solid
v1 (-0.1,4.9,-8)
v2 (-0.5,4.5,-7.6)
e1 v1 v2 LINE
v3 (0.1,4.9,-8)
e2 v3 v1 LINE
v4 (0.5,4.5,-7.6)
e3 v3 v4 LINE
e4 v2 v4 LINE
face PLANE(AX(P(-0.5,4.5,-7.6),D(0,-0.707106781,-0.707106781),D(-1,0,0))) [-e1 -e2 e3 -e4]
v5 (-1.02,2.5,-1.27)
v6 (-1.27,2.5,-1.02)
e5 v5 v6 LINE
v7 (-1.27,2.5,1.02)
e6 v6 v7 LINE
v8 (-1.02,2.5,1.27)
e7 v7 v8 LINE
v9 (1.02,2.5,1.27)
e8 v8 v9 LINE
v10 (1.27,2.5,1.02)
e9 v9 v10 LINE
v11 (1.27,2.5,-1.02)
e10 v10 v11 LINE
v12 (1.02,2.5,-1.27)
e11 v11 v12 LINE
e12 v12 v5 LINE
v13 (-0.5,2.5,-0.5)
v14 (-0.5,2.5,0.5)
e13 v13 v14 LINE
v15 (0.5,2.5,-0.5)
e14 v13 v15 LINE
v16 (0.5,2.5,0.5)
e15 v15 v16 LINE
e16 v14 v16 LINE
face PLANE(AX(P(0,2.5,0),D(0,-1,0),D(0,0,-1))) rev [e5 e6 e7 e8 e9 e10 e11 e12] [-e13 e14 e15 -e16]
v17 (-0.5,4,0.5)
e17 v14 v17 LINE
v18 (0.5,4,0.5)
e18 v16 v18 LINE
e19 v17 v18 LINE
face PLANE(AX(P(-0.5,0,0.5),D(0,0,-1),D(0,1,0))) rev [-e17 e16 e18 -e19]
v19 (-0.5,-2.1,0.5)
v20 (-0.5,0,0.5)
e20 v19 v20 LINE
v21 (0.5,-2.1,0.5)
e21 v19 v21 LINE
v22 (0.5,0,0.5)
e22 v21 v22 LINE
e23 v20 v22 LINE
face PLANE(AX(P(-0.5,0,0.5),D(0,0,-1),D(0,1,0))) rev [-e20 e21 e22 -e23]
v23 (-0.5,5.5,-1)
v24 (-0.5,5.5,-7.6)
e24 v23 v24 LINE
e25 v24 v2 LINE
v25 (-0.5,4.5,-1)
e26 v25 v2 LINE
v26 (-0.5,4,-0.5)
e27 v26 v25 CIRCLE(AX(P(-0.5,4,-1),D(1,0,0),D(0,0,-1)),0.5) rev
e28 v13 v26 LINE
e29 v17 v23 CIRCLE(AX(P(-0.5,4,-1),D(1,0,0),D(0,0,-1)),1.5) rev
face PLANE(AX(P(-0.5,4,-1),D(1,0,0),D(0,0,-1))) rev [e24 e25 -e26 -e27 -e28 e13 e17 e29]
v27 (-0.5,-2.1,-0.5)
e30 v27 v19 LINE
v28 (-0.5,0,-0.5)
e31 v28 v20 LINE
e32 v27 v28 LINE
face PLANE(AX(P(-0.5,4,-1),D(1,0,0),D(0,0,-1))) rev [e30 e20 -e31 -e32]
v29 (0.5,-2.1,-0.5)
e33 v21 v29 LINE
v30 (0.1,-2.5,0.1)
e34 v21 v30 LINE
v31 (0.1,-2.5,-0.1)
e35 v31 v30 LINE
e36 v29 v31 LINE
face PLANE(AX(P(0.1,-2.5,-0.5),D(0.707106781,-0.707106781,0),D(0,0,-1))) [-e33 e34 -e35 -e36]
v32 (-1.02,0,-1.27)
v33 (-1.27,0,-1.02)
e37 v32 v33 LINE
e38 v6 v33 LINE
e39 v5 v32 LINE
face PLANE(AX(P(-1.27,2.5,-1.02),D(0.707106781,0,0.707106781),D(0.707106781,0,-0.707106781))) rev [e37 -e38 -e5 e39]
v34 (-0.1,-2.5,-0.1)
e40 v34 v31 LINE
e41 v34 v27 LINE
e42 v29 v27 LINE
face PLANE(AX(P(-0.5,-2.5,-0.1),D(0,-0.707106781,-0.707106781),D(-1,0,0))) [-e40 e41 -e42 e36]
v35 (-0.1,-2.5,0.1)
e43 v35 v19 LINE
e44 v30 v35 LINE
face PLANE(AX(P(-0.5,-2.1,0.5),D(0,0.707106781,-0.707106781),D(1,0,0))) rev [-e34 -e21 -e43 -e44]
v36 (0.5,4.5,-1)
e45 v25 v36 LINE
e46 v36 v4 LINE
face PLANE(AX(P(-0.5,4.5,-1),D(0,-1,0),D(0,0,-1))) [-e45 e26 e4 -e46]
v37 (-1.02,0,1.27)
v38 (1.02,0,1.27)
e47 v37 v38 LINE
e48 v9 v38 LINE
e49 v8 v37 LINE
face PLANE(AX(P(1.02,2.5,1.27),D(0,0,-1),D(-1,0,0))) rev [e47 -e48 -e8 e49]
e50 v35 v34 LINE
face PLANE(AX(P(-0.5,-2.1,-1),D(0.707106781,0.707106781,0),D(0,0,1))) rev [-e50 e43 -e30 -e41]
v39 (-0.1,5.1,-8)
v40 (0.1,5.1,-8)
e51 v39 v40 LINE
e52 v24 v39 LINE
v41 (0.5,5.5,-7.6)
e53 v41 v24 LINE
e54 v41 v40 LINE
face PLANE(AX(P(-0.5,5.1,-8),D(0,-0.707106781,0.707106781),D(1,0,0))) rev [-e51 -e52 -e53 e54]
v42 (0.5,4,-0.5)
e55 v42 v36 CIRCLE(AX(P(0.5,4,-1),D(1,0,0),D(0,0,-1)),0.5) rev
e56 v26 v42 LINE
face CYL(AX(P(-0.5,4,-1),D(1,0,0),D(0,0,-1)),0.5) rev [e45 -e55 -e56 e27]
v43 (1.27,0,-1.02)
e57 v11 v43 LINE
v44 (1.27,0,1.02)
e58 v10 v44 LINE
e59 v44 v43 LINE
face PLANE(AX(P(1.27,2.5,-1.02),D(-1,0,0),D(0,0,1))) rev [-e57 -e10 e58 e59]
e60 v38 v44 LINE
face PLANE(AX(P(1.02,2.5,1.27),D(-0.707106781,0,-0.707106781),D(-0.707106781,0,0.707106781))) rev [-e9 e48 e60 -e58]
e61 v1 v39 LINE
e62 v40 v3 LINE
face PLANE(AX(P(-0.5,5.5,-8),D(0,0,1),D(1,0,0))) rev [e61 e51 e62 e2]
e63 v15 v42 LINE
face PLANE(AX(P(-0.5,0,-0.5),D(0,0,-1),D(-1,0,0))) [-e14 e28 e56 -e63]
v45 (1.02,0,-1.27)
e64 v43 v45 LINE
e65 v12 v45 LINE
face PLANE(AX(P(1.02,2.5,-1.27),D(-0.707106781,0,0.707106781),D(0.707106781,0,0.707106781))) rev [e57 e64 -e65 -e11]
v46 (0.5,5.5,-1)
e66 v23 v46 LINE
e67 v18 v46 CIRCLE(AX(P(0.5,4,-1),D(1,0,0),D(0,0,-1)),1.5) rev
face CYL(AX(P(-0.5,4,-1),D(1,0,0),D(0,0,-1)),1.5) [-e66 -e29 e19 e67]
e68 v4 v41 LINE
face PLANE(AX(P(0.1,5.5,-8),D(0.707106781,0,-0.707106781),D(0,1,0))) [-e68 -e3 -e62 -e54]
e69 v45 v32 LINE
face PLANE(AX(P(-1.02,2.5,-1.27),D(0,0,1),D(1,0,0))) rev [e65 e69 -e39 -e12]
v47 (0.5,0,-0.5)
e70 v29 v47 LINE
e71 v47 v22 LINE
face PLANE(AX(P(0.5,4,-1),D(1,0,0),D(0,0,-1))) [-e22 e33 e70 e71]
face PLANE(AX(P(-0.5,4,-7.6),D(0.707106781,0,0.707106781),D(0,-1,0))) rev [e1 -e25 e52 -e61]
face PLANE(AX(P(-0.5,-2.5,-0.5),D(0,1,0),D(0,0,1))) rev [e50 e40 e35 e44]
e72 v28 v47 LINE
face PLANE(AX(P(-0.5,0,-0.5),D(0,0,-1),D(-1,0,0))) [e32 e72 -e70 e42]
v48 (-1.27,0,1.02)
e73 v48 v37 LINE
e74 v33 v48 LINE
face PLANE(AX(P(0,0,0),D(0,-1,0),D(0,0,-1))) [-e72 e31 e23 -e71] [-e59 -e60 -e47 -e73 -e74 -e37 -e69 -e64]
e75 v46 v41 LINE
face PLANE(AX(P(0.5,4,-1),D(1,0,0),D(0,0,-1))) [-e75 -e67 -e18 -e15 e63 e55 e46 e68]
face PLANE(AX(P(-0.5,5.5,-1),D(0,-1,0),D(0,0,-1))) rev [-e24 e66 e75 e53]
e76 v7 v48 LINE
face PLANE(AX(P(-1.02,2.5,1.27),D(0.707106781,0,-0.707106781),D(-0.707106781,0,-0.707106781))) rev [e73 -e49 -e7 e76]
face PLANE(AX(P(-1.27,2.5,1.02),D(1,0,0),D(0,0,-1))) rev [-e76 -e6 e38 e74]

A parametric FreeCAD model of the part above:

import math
import FreeCAD as App
import Part
import Sketcher
from FreeCAD import Vector


def edges_at(feature, points):
    """Names of the edges that pass closest to the given points."""
    edges = feature.Shape.Edges
    near = lambda p: min(range(len(edges)), key=lambda i: edges[i].distToShape(Part.Vertex(*p))[0])
    return sorted({f"Edge{near(p) + 1}" for p in points})


def add_polygon(sketch, points):
    """Adds a closed chain of lines whose ends are joined by coincident constraints."""
    first, n = sketch.GeometryCount, len(points)
    for a, b in zip(points, points[1:] + points[:1]):
        sketch.addGeometry(Part.LineSegment(App.Vector(*a, 0), App.Vector(*b, 0)), False)
    for i in range(n):
        sketch.addConstraint(Sketcher.Constraint("Coincident", first + i, 2, first + (i + 1) % n, 1))

doc = App.newDocument("Part")
body = doc.addObject("PartDesign::Body", "Body")

sketch1 = doc.addObject("Sketcher::SketchObject", "Sketch")
body.addObject(sketch1)
sketch1.AttachmentSupport = (doc.XZ_Plane, [""])
sketch1.MapMode = "FlatFace"
add_polygon(sketch1, [(-1.02, 1.27), (1.02, 1.27), (1.27, 1.02), (1.27, -1.02), (1.02, -1.27), (-1.02, -1.27), (-1.27, -1.02), (-1.27, 1.02)])
sketch1.addConstraint([
    Sketcher.Constraint("Horizontal", 0),
    Sketcher.Constraint("Vertical", 2),
    Sketcher.Constraint("Horizontal", 4),
    Sketcher.Constraint("Vertical", 6),
    Sketcher.Constraint("Symmetric", 0, 2, 4, 2, -1, 1),
    Sketcher.Constraint("Symmetric", 1, 2, 5, 2, -1, 1),
    Sketcher.Constraint("Perpendicular", 1, 3),
    Sketcher.Constraint("Perpendicular", 5, 7),
    Sketcher.Constraint("Horizontal", 2, 2, 5, 2),
    Sketcher.Constraint("Horizontal", 1, 2, 6, 2),
    Sketcher.Constraint("Vertical", 0, 2, 3, 2),
    Sketcher.Constraint("Equal", 4, 2),
    Sketcher.Constraint("DistanceX", 0, 1, 0, 2, 2.04),
    Sketcher.Constraint("DistanceY", -1, 1, 0, 2, 1.27),
])
pad1 = doc.addObject("PartDesign::Pad", "Pad")
body.addObject(pad1)
pad1.Profile = sketch1
pad1.Length = 2.5
pad1.Reversed = True

sketch2 = doc.addObject("Sketcher::SketchObject", "Sketch001")
body.addObject(sketch2)
sketch2.AttachmentSupport = (doc.YZ_Plane, [""])
sketch2.MapMode = "FlatFace"
sketch2.addGeometry([
    Part.LineSegment(Vector(-2.5, -0.5, 0), Vector(4, -0.5, 0)),
    Part.ArcOfCircle(Part.Circle(Vector(4, -1, 0), Vector(0, 0, 1), 0.5), math.radians(0), math.radians(90)),
    Part.LineSegment(Vector(4.5, -1, 0), Vector(4.5, -8, 0)),
    Part.LineSegment(Vector(4.5, -8, 0), Vector(5.5, -8, 0)),
    Part.LineSegment(Vector(5.5, -8, 0), Vector(5.5, -1, 0)),
    Part.ArcOfCircle(Part.Circle(Vector(4, -1, 0), Vector(0, 0, 1), 1.5), math.radians(0), math.radians(90)),
    Part.LineSegment(Vector(4, 0.5, 0), Vector(-2.5, 0.5, 0)),
    Part.LineSegment(Vector(-2.5, 0.5, 0), Vector(-2.5, -0.5, 0)),
], False)
sketch2.addConstraint([
    Sketcher.Constraint("Tangent", 0, 2, 1, 2),
    Sketcher.Constraint("Tangent", 1, 1, 2, 1),
    Sketcher.Constraint("Coincident", 2, 2, 3, 1),
    Sketcher.Constraint("Coincident", 3, 2, 4, 1),
    Sketcher.Constraint("Tangent", 4, 2, 5, 1),
    Sketcher.Constraint("Tangent", 5, 2, 6, 1),
    Sketcher.Constraint("Coincident", 6, 2, 7, 1),
    Sketcher.Constraint("Coincident", 7, 2, 0, 1),
    Sketcher.Constraint("Horizontal", 0),
    Sketcher.Constraint("Vertical", 2),
    Sketcher.Constraint("Horizontal", 3),
    Sketcher.Constraint("Vertical", 4),
    Sketcher.Constraint("Horizontal", 6),
    Sketcher.Constraint("Vertical", 7),
    Sketcher.Constraint("Coincident", 5, 3, 1, 3),
    Sketcher.Constraint("Radius", 1, 0.5),
    Sketcher.Constraint("Radius", 5, 1.5),
    Sketcher.Constraint("DistanceY", 2, 2, 2, 1, 7.0),
    Sketcher.Constraint("DistanceX", 0, 1, 0, 2, 6.5),
    Sketcher.Constraint("DistanceX", -1, 1, 1, 3, 4.0),
    Sketcher.Constraint("DistanceY", 1, 3, -1, 1, 1.0),
])
pad2 = doc.addObject("PartDesign::Pad", "Pad001")
body.addObject(pad2)
pad2.Profile = sketch2
pad2.Type = "TwoLengths"
pad2.Length = 0.5
pad2.Length2 = 0.5
doc.recompute()

chamfer = doc.addObject("PartDesign::Chamfer", "Chamfer")
body.addObject(chamfer)
chamfer.Base = (pad2, edges_at(pad2, [
    (-0.5, 5, -8),
    (0, 4.5, -8),
    (0, -2.5, -0.5),
    (0.5, -2.5, 0),
    (0, -2.5, 0.5),
    (0, 5.5, -8),
    (0.5, 5, -8),
    (-0.5, -2.5, 0),
]))
chamfer.Size = 0.4

doc.recompute()
